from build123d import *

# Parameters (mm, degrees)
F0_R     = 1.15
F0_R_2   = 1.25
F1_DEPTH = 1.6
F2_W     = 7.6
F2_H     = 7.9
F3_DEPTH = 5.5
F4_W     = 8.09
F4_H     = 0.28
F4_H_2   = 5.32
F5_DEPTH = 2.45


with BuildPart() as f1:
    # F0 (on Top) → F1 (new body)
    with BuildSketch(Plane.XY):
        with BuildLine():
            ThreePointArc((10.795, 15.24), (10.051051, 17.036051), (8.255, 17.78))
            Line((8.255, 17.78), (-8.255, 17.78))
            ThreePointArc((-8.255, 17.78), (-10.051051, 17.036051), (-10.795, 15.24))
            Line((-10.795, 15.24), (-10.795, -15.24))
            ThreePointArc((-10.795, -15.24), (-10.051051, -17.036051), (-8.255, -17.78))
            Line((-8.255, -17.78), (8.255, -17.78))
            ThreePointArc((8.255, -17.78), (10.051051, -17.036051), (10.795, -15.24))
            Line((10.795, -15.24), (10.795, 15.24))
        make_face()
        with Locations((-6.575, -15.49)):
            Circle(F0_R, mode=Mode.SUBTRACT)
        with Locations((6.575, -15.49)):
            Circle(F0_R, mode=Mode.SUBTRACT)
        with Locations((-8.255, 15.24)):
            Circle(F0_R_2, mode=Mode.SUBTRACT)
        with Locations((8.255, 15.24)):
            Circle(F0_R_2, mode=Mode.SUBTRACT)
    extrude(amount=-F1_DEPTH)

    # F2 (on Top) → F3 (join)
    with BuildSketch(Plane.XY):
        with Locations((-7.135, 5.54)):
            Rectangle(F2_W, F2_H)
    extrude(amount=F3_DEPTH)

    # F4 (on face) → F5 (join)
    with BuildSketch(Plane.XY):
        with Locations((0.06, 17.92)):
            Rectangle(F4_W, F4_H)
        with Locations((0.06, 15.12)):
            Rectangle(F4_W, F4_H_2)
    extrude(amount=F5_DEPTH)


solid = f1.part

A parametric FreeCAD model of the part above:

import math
import FreeCAD as App
import Part
import Sketcher
from FreeCAD import Vector


def add_polygon(sketch, points):
    """Adds a closed chain of lines whose ends are joined by coincident constraints."""
    first, n = sketch.GeometryCount, len(points)
    for a, b in zip(points, points[1:] + points[:1]):
        sketch.addGeometry(Part.LineSegment(App.Vector(*a, 0), App.Vector(*b, 0)), False)
    for i in range(n):
        sketch.addConstraint(Sketcher.Constraint("Coincident", first + i, 2, first + (i + 1) % n, 1))

doc = App.newDocument("Part")
body = doc.addObject("PartDesign::Body", "Body")

sketch1 = doc.addObject("Sketcher::SketchObject", "Sketch")
body.addObject(sketch1)
sketch1.AttachmentSupport = (doc.XY_Plane, [""])
sketch1.MapMode = "FlatFace"
sketch1.addGeometry([
    Part.ArcOfCircle(Part.Circle(Vector(8.3, 15.2, 0), Vector(0, 0, 1), 2.5), math.radians(0), math.radians(90)),
    Part.LineSegment(Vector(8.3, 17.8, 0), Vector(-8.3, 17.8, 0)),
    Part.ArcOfCircle(Part.Circle(Vector(-8.3, 15.2, 0), Vector(0, 0, 1), 2.5), math.radians(90), math.radians(180)),
    Part.LineSegment(Vector(-10.8, 15.2, 0), Vector(-10.8, -15.2, 0)),
    Part.ArcOfCircle(Part.Circle(Vector(-8.3, -15.2, 0), Vector(0, 0, 1), 2.5), math.radians(-180), math.radians(-90)),
    Part.LineSegment(Vector(-8.3, -17.8, 0), Vector(8.3, -17.8, 0)),
    Part.ArcOfCircle(Part.Circle(Vector(8.3, -15.2, 0), Vector(0, 0, 1), 2.5), math.radians(-90), math.radians(0)),
    Part.LineSegment(Vector(10.8, -15.2, 0), Vector(10.8, 15.2, 0)),
    Part.Circle(Vector(-6.6, -15.5, 0), Vector(0, 0, 1), 1.1),
    Part.Circle(Vector(6.6, -15.5, 0), Vector(0, 0, 1), 1.1),
    Part.Circle(Vector(-8.3, 15.2, 0), Vector(0, 0, 1), 1.2),
    Part.Circle(Vector(8.3, 15.2, 0), Vector(0, 0, 1), 1.2),
], False)
sketch1.addConstraint([
    Sketcher.Constraint("Tangent", 0, 2, 1, 1),
    Sketcher.Constraint("Tangent", 1, 2, 2, 1),
    Sketcher.Constraint("Tangent", 2, 2, 3, 1),
    Sketcher.Constraint("Tangent", 3, 2, 4, 1),
    Sketcher.Constraint("Tangent", 4, 2, 5, 1),
    Sketcher.Constraint("Tangent", 5, 2, 6, 1),
    Sketcher.Constraint("Tangent", 6, 2, 7, 1),
    Sketcher.Constraint("Tangent", 7, 2, 0, 1),
    Sketcher.Constraint("Horizontal", 1),
    Sketcher.Constraint("Vertical", 3),
    Sketcher.Constraint("Horizontal", 5),
    Sketcher.Constraint("Vertical", 7),
    Sketcher.Constraint("Coincident", 10, 3, 2, 3),
    Sketcher.Constraint("Coincident", 11, 3, 0, 3),
    Sketcher.Constraint("Equal", 0, 2),
    Sketcher.Constraint("Equal", 2, 4),
    Sketcher.Constraint("Equal", 4, 6),
    Sketcher.Constraint("Equal", 8, 9),
    Sketcher.Constraint("Equal", 10, 11),
    Sketcher.Constraint("Symmetric", 0, 3, 4, 3, -1, 1),
    Sketcher.Constraint("Symmetric", 8, 3, 9, 3, -2),
    Sketcher.Constraint("Diameter", 8, 2.3),
    Sketcher.Constraint("Diameter", 10, 2.5),
    Sketcher.Constraint("Radius", 0, 2.540001),
    Sketcher.Constraint("DistanceX", 1, 2, 1, 1, 16.51),
    Sketcher.Constraint("DistanceY", 3, 2, 3, 1, 30.48),
    Sketcher.Constraint("DistanceY", 8, 3, -1, 1, 15.49),
    Sketcher.Constraint("DistanceX", 4, 3, 8, 3, 1.679999),
])
pad1 = doc.addObject("PartDesign::Pad", "Pad")
body.addObject(pad1)
pad1.Profile = sketch1
pad1.Length = 1.6
pad1.Reversed = True

sketch2 = doc.addObject("Sketcher::SketchObject", "Sketch001")
body.addObject(sketch2)
sketch2.AttachmentSupport = (doc.XY_Plane, [""])
sketch2.MapMode = "FlatFace"
add_polygon(sketch2, [(-11, 9), (-11, 2), (-3, 2), (-3, 9)])
sketch2.addConstraint([
    Sketcher.Constraint("Vertical", 0),
    Sketcher.Constraint("Horizontal", 1),
    Sketcher.Constraint("Vertical", 2),
    Sketcher.Constraint("Horizontal", 3),
    Sketcher.Constraint("DistanceX", 1, 1, 1, 2, 7.6),
    Sketcher.Constraint("DistanceY", 0, 2, 0, 1, 7.9),
    Sketcher.Constraint("DistanceY", -1, 1, 0, 2, 1.59),
    Sketcher.Constraint("DistanceX", 0, 2, -1, 1, 10.935),
])
pad2 = doc.addObject("PartDesign::Pad", "Pad001")
body.addObject(pad2)
pad2.Profile = sketch2
pad2.Length = 5.5

sketch3 = doc.addObject("Sketcher::SketchObject", "Sketch002")
body.addObject(sketch3)
sketch3.AttachmentSupport = (doc.XY_Plane, [""])
sketch3.MapMode = "FlatFace"
add_polygon(sketch3, [(-4, 18), (-4, 12), (4, 12), (4, 18)])
sketch3.addConstraint([
    Sketcher.Constraint("Vertical", 0),
    Sketcher.Constraint("Horizontal", 1),
    Sketcher.Constraint("Vertical", 2),
    Sketcher.Constraint("Horizontal", 3),
    Sketcher.Constraint("DistanceY", 0, 2, 0, 1, 5.6),
    Sketcher.Constraint("DistanceX", 1, 1, 1, 2, 8.09),
    Sketcher.Constraint("DistanceY", -1, 1, 0, 2, 12.46),
    Sketcher.Constraint("DistanceX", 0, 2, -1, 1, 3.985),
])
pad3 = doc.addObject("PartDesign::Pad", "Pad002")
body.addObject(pad3)
pad3.Profile = sketch3
pad3.Length = 2.45

doc.recompute()
